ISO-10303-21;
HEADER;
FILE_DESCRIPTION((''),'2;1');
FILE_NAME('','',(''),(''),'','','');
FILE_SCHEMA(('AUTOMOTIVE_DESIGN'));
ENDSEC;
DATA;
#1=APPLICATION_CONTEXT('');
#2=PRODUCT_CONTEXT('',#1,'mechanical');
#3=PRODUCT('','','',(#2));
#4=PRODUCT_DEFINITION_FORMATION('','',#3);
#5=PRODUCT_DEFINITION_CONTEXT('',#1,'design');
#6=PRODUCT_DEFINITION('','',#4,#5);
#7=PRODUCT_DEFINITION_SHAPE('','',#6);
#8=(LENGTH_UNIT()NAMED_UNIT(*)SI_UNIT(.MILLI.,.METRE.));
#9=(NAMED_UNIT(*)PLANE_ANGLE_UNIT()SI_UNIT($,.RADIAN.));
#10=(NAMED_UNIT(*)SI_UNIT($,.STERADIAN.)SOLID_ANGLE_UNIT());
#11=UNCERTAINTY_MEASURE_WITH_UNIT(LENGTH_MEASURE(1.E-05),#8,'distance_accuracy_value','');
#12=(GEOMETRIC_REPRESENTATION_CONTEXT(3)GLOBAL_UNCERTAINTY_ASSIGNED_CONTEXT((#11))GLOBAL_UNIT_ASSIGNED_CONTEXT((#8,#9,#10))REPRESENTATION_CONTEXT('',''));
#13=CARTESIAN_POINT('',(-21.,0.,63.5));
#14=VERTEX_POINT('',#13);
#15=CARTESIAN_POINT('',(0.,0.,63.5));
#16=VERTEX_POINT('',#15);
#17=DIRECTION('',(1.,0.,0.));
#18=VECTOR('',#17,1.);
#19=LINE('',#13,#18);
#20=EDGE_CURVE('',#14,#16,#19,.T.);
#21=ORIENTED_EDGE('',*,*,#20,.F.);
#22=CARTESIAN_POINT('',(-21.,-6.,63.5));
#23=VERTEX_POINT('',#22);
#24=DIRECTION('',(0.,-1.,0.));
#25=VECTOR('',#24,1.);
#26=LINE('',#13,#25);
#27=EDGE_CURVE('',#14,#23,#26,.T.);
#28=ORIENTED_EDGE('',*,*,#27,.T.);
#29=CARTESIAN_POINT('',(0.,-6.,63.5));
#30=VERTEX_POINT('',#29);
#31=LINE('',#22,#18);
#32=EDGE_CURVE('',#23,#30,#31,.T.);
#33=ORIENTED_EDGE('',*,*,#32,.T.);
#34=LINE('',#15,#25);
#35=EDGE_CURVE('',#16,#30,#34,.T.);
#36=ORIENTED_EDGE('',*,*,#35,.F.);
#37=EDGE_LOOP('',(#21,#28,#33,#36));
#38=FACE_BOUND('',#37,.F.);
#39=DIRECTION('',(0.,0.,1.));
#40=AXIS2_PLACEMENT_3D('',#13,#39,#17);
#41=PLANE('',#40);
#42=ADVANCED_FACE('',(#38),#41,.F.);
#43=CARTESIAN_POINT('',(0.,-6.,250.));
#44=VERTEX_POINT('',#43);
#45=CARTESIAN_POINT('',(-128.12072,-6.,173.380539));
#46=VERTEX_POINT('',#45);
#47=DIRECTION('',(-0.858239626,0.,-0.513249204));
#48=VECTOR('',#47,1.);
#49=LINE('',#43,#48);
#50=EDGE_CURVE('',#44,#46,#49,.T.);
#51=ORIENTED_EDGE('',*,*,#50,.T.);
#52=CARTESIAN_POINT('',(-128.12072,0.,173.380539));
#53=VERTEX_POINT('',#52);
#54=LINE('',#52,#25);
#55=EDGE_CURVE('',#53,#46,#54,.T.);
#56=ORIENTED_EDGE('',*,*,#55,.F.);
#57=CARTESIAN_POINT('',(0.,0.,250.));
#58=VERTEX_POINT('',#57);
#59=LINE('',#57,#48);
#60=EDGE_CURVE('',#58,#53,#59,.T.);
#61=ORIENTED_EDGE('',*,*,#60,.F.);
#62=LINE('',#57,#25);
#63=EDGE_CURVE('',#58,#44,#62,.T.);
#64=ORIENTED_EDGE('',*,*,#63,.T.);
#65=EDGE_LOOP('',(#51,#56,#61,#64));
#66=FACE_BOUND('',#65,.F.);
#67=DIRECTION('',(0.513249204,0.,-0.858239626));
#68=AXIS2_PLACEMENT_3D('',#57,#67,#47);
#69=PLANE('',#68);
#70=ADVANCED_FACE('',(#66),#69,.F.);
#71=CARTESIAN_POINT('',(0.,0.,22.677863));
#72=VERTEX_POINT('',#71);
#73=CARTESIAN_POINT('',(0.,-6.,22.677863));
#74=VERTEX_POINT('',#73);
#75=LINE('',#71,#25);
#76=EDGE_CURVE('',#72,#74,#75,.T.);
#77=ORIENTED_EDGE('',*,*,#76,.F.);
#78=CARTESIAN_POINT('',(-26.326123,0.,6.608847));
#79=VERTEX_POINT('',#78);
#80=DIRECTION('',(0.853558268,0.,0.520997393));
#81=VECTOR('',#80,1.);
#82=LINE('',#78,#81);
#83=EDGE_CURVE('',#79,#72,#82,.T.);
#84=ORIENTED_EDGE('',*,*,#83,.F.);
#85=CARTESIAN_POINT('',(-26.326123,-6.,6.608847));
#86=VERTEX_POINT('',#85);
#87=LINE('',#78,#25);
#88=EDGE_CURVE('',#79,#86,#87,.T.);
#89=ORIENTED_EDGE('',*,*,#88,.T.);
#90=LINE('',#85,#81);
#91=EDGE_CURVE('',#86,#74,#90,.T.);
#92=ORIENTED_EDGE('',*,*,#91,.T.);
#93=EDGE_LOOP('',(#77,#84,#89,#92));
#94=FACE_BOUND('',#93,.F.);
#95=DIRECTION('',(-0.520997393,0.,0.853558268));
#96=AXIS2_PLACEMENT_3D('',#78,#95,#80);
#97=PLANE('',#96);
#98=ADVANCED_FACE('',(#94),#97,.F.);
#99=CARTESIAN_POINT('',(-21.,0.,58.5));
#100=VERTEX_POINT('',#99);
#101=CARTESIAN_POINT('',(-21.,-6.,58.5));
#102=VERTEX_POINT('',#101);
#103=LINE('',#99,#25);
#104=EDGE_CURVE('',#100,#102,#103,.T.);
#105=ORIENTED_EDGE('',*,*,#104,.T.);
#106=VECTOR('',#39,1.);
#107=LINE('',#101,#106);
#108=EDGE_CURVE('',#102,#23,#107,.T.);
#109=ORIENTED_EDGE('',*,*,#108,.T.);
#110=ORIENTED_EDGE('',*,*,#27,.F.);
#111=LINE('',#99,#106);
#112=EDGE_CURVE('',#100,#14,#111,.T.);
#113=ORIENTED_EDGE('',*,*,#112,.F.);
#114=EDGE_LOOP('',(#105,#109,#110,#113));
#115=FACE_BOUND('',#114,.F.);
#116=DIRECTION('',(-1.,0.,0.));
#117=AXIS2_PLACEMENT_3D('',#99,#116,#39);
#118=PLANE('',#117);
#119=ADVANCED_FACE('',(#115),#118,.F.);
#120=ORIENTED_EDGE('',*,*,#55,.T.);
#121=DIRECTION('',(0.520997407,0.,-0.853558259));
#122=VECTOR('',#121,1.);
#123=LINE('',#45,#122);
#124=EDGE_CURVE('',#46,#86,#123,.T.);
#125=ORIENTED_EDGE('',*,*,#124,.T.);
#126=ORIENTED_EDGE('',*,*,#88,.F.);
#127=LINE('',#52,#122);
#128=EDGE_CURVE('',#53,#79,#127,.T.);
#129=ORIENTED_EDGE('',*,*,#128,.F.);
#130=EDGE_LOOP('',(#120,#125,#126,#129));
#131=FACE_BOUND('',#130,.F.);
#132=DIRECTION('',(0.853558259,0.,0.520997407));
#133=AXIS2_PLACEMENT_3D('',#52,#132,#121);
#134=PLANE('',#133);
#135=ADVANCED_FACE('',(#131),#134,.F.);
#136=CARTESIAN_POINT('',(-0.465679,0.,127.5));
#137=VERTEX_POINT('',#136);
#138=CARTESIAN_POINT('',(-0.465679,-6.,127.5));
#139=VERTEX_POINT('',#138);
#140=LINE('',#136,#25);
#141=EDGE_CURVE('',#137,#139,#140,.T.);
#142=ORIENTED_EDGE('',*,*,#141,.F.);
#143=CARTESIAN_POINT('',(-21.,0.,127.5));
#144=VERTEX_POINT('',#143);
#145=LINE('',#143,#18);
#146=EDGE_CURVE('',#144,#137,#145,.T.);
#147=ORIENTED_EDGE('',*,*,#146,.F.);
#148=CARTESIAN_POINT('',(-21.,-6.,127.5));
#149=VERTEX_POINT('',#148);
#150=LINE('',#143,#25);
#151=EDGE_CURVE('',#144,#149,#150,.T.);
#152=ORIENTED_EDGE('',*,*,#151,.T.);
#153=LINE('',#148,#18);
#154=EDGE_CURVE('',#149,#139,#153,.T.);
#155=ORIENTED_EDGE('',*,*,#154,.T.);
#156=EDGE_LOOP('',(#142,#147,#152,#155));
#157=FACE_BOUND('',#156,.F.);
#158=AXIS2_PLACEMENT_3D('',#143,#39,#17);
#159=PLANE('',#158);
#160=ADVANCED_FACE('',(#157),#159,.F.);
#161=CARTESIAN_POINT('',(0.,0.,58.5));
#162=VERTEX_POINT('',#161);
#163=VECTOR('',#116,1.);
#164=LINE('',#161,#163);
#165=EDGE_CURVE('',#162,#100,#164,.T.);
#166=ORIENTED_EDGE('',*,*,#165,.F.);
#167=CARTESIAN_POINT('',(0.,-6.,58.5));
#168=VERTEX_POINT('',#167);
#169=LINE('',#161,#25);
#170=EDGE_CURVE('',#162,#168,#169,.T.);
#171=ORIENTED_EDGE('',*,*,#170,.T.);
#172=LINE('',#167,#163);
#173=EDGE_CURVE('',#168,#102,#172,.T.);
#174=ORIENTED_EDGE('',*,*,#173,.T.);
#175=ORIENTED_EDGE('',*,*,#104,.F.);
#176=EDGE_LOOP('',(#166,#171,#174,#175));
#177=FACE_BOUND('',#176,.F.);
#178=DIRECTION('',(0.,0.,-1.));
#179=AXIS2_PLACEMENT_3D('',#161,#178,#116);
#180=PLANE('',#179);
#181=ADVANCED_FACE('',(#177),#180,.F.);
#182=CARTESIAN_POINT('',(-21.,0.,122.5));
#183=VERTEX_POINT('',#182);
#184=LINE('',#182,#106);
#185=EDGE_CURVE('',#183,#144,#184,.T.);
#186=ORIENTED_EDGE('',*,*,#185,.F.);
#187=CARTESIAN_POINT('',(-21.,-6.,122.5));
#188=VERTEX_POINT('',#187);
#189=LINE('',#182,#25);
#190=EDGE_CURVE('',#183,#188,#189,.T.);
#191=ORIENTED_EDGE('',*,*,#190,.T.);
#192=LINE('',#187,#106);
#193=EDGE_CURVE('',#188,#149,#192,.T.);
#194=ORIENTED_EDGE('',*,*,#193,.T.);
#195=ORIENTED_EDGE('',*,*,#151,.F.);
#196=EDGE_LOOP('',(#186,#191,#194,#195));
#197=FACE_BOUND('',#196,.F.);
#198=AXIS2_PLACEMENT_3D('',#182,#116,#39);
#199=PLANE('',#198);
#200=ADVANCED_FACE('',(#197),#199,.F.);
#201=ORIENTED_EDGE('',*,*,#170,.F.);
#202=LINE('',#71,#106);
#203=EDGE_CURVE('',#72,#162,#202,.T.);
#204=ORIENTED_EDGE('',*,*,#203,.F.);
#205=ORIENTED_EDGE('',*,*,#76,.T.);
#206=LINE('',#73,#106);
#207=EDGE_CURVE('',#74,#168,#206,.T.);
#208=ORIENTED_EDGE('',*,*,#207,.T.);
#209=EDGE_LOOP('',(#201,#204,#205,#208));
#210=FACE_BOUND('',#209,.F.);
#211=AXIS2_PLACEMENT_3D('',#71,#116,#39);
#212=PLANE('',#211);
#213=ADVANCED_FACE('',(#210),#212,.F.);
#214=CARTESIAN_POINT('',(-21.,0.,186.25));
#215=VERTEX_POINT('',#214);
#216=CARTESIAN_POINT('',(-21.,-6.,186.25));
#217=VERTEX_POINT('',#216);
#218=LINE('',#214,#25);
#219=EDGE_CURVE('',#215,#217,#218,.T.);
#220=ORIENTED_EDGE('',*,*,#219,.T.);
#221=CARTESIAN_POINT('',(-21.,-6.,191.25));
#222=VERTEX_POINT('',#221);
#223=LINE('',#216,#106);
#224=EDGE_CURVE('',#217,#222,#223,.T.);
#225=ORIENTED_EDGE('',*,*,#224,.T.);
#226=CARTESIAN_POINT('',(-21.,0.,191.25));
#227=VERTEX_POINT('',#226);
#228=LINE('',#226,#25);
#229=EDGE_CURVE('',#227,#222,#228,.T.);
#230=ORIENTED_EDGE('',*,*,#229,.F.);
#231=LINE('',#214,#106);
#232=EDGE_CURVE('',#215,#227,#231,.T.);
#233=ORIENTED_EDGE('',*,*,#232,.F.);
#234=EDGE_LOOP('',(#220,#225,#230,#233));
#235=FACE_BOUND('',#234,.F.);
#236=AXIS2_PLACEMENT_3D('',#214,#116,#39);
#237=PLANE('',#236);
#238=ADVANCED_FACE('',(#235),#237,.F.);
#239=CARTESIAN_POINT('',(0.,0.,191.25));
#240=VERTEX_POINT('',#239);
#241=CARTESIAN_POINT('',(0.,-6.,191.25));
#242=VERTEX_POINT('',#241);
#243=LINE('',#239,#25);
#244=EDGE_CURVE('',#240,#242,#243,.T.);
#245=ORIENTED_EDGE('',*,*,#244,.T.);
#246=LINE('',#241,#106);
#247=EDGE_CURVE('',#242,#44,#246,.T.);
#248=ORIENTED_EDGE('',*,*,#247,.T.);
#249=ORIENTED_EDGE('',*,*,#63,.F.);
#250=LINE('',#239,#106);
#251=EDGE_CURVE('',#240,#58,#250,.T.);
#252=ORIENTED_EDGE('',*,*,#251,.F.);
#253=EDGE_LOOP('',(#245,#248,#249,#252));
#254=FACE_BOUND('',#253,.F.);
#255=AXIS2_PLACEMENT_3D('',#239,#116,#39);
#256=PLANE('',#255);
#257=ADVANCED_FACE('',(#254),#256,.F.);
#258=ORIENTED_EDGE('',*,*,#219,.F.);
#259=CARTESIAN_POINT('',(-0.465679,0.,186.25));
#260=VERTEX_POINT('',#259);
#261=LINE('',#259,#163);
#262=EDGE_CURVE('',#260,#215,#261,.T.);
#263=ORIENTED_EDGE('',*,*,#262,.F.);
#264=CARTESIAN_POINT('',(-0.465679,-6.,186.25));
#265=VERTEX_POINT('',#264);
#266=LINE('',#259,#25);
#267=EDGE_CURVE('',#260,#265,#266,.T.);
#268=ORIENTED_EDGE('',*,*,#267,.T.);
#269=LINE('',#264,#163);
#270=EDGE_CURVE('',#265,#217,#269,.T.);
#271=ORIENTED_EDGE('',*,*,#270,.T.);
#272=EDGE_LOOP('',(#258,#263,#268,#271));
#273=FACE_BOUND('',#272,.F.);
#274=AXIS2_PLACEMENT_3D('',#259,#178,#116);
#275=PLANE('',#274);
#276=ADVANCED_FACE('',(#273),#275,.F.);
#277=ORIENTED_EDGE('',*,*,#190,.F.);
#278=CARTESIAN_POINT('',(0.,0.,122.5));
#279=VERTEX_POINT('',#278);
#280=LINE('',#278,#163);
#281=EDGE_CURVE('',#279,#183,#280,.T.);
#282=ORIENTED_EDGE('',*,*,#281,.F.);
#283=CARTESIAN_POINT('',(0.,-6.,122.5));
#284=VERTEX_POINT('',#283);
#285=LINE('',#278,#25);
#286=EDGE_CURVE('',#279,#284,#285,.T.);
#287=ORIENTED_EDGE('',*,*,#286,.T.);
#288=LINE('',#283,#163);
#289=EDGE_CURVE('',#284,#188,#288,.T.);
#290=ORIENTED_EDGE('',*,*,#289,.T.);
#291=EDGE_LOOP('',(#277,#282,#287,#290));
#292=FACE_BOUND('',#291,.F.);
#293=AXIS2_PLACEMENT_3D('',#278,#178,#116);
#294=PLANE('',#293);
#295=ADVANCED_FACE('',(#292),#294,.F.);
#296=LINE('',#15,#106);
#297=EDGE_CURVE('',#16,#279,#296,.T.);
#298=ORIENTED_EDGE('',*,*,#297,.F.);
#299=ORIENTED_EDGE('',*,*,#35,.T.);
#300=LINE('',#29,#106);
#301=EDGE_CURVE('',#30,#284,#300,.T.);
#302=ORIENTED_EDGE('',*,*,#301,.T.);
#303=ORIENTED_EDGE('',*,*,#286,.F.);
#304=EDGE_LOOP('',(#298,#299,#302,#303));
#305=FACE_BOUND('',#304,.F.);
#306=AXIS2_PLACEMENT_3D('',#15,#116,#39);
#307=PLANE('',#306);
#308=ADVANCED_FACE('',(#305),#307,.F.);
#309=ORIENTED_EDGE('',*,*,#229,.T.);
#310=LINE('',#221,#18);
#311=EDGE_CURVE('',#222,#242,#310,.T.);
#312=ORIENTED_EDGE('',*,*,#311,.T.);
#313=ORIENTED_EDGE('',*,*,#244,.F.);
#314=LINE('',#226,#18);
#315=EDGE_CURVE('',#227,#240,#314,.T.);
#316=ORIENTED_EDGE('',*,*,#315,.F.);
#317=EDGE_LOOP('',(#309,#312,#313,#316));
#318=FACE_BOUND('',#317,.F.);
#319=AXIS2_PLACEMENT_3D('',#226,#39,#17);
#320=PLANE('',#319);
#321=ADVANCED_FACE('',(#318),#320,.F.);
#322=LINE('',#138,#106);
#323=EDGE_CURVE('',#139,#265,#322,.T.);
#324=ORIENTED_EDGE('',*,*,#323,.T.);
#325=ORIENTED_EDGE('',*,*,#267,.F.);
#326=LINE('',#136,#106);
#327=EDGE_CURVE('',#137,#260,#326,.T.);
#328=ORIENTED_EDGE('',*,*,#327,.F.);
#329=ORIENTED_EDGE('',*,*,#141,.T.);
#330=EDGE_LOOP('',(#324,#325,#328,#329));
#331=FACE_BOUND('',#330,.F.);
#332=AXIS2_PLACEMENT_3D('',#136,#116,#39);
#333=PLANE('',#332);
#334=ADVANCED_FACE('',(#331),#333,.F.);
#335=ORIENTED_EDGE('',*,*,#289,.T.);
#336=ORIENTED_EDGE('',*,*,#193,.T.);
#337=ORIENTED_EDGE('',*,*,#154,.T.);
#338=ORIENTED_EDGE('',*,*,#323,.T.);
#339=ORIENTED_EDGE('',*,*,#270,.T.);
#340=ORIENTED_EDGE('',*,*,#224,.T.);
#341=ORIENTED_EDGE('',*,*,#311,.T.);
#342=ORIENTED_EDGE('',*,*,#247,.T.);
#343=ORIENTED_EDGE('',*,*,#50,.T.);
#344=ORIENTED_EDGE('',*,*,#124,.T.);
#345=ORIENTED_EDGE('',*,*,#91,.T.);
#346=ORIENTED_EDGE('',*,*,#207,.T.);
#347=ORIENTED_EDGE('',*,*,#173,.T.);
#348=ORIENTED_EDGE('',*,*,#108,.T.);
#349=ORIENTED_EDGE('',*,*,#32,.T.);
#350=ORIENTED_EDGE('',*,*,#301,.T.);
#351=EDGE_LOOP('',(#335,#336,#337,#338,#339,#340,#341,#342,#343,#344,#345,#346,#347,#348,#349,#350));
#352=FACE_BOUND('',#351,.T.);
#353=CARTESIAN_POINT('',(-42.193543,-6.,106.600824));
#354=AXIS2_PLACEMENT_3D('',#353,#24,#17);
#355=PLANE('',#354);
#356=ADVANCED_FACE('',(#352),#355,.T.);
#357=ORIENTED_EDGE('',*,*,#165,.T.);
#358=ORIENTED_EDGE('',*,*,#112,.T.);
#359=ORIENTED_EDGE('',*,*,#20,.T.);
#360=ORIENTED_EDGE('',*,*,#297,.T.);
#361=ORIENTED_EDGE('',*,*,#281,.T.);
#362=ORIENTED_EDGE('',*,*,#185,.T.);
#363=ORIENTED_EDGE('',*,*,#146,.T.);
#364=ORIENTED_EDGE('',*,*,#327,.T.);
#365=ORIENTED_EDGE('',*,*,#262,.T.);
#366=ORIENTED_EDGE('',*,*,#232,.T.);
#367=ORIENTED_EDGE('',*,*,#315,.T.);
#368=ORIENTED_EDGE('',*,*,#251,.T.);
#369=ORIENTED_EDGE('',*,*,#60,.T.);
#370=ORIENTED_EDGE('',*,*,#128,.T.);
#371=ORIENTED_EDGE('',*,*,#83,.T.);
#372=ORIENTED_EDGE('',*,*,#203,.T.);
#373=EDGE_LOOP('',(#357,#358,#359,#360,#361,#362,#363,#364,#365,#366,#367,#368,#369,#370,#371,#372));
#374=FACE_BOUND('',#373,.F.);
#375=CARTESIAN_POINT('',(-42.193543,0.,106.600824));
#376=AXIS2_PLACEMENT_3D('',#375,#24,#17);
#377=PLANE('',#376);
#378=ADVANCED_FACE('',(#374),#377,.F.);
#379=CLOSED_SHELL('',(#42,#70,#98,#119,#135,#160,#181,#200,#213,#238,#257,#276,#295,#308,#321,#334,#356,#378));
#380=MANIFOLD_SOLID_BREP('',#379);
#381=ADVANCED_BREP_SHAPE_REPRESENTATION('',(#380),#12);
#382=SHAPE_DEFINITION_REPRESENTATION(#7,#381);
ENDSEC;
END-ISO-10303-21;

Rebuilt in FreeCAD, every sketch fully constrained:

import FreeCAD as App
import Part
import Sketcher
from FreeCAD import Vector
Q = App.Units.Quantity

doc = App.newDocument("Part")
params = doc.addObject("Spreadsheet::Sheet", "Params")
for row, (alias, value) in enumerate([
    ("sketch1_width", "21 mm"),
    ("sketch1_height", "5 mm"),
    ("sketch1_height2", "59 mm"),
    ("sketch1_height3", "58.75 mm"),
    ("pad1_length", "6 mm"),
], start=1):
    params.set(f"A{row}", alias)
    params.set(f"B{row}", "=" + value)
    params.setAlias(f"B{row}", alias)

body = doc.addObject("PartDesign::Body", "Body")

# Sketch on XZ plane
sketch1 = body.newObject("Sketcher::SketchObject", "Sketch")
sketch1.AttachmentSupport = (doc.getObject("XZ_Plane"), [""])
sketch1.MapMode = "FlatFace"
sketch1.addGeometry([
    Part.LineSegment(Vector(0, 23, 0), Vector(0, 58, 0)),  # 0
    Part.LineSegment(Vector(0, 58, 0), Vector(-21, 58, 0)),  # 1
    Part.LineSegment(Vector(-21, 58, 0), Vector(-21, 64, 0)),  # 2
    Part.LineSegment(Vector(-21, 64, 0), Vector(0, 64, 0)),  # 3
    Part.LineSegment(Vector(0, 64, 0), Vector(0, 122, 0)),  # 4
    Part.LineSegment(Vector(0, 122, 0), Vector(-21, 122, 0)),  # 5
    Part.LineSegment(Vector(-21, 122, 0), Vector(-21, 128, 0)),  # 6
    Part.LineSegment(Vector(-21, 128, 0), Vector(0, 128, 0)),  # 7
    Part.LineSegment(Vector(0, 128, 0), Vector(0, 186, 0)),  # 8
    Part.LineSegment(Vector(0, 186, 0), Vector(-21, 186, 0)),  # 9
    Part.LineSegment(Vector(-21, 186, 0), Vector(-21, 191, 0)),  # 10
    Part.LineSegment(Vector(-21, 191, 0), Vector(0, 191, 0)),  # 11
    Part.LineSegment(Vector(0, 191, 0), Vector(0, 250, 0)),  # 12
    Part.LineSegment(Vector(0, 250, 0), Vector(-128, 173, 0)),  # 13
    Part.LineSegment(Vector(-128, 173, 0), Vector(-26, 7, 0)),  # 14
    Part.LineSegment(Vector(-26, 7, 0), Vector(0, 23, 0)),  # 15
], False)
sketch1.addConstraint([
    Sketcher.Constraint("Coincident", 0, 2, 1, 1),
    Sketcher.Constraint("Coincident", 1, 2, 2, 1),
    Sketcher.Constraint("Coincident", 2, 2, 3, 1),
    Sketcher.Constraint("Coincident", 3, 2, 4, 1),
    Sketcher.Constraint("Coincident", 4, 2, 5, 1),
    Sketcher.Constraint("Coincident", 5, 2, 6, 1),
    Sketcher.Constraint("Coincident", 6, 2, 7, 1),
    Sketcher.Constraint("Coincident", 7, 2, 8, 1),
    Sketcher.Constraint("Coincident", 8, 2, 9, 1),
    Sketcher.Constraint("Coincident", 9, 2, 10, 1),
    Sketcher.Constraint("Coincident", 10, 2, 11, 1),
    Sketcher.Constraint("Coincident", 11, 2, 12, 1),
    Sketcher.Constraint("Coincident", 12, 2, 13, 1),
    Sketcher.Constraint("Coincident", 13, 2, 14, 1),
    Sketcher.Constraint("Coincident", 14, 2, 15, 1),
    Sketcher.Constraint("Coincident", 15, 2, 0, 1),
    Sketcher.Constraint("Vertical", 0),
    Sketcher.Constraint("Horizontal", 1),
    Sketcher.Constraint("Vertical", 2),
    Sketcher.Constraint("Horizontal", 3),
    Sketcher.Constraint("Vertical", 4),
    Sketcher.Constraint("Horizontal", 5),
    Sketcher.Constraint("Vertical", 6),
    Sketcher.Constraint("Horizontal", 7),
    Sketcher.Constraint("Vertical", 8),
    Sketcher.Constraint("Horizontal", 9),
    Sketcher.Constraint("Vertical", 10),
    Sketcher.Constraint("Horizontal", 11),
    Sketcher.Constraint("Vertical", 12),
    Sketcher.Constraint("PointOnObject", 0, 2, -2),
    Sketcher.Constraint("PointOnObject", 3, 2, -2),
    Sketcher.Constraint("PointOnObject", 11, 2, -2),
    Sketcher.Constraint("Perpendicular", 14, 15),
    Sketcher.Constraint("Vertical", 2, 2, 5, 2),
    Sketcher.Constraint("Vertical", 6, 2, 9, 2),
    Sketcher.Constraint("Equal", 2, 6),
    Sketcher.Constraint("Equal", 6, 10),
    Sketcher.Constraint("Equal", 8, 12),
    Sketcher.Constraint("DistanceX", 1, 2, 1, 1, Q("21 mm")),
    Sketcher.Constraint("DistanceY", 2, 1, 2, 2, Q("5 mm")),
    Sketcher.Constraint("DistanceY", 4, 1, 4, 2, Q("59 mm")),
    Sketcher.Constraint("DistanceY", -1, 1, 12, 2, Q("250 mm")),
    Sketcher.Constraint("DistanceY", 8, 1, 8, 2, Q("58.75 mm")),
    Sketcher.Constraint("DistanceX", 7, 1, 7, 2, Q("20.534321 mm")),
    Sketcher.Constraint("DistanceY", 0, 1, 0, 2, Q("35.822137 mm")),
    Sketcher.Constraint("DistanceX", 13, 2, -1, 1, Q("128.12072 mm")),
    Sketcher.Constraint("DistanceY", -1, 1, 13, 2, Q("173.380539 mm")),
    Sketcher.Constraint("Distance", 14, Q("195.384076 mm")),
])
sketch1.setExpression("Constraints[38]", "Params.sketch1_width")
sketch1.setExpression("Constraints[39]", "Params.sketch1_height")
sketch1.setExpression("Constraints[40]", "Params.sketch1_height2")
sketch1.setExpression("Constraints[42]", "Params.sketch1_height3")
pad1 = body.newObject("PartDesign::Pad", "Pad")
pad1.Profile = sketch1
pad1.setExpression("Length", "Params.pad1_length")

doc.recompute()
